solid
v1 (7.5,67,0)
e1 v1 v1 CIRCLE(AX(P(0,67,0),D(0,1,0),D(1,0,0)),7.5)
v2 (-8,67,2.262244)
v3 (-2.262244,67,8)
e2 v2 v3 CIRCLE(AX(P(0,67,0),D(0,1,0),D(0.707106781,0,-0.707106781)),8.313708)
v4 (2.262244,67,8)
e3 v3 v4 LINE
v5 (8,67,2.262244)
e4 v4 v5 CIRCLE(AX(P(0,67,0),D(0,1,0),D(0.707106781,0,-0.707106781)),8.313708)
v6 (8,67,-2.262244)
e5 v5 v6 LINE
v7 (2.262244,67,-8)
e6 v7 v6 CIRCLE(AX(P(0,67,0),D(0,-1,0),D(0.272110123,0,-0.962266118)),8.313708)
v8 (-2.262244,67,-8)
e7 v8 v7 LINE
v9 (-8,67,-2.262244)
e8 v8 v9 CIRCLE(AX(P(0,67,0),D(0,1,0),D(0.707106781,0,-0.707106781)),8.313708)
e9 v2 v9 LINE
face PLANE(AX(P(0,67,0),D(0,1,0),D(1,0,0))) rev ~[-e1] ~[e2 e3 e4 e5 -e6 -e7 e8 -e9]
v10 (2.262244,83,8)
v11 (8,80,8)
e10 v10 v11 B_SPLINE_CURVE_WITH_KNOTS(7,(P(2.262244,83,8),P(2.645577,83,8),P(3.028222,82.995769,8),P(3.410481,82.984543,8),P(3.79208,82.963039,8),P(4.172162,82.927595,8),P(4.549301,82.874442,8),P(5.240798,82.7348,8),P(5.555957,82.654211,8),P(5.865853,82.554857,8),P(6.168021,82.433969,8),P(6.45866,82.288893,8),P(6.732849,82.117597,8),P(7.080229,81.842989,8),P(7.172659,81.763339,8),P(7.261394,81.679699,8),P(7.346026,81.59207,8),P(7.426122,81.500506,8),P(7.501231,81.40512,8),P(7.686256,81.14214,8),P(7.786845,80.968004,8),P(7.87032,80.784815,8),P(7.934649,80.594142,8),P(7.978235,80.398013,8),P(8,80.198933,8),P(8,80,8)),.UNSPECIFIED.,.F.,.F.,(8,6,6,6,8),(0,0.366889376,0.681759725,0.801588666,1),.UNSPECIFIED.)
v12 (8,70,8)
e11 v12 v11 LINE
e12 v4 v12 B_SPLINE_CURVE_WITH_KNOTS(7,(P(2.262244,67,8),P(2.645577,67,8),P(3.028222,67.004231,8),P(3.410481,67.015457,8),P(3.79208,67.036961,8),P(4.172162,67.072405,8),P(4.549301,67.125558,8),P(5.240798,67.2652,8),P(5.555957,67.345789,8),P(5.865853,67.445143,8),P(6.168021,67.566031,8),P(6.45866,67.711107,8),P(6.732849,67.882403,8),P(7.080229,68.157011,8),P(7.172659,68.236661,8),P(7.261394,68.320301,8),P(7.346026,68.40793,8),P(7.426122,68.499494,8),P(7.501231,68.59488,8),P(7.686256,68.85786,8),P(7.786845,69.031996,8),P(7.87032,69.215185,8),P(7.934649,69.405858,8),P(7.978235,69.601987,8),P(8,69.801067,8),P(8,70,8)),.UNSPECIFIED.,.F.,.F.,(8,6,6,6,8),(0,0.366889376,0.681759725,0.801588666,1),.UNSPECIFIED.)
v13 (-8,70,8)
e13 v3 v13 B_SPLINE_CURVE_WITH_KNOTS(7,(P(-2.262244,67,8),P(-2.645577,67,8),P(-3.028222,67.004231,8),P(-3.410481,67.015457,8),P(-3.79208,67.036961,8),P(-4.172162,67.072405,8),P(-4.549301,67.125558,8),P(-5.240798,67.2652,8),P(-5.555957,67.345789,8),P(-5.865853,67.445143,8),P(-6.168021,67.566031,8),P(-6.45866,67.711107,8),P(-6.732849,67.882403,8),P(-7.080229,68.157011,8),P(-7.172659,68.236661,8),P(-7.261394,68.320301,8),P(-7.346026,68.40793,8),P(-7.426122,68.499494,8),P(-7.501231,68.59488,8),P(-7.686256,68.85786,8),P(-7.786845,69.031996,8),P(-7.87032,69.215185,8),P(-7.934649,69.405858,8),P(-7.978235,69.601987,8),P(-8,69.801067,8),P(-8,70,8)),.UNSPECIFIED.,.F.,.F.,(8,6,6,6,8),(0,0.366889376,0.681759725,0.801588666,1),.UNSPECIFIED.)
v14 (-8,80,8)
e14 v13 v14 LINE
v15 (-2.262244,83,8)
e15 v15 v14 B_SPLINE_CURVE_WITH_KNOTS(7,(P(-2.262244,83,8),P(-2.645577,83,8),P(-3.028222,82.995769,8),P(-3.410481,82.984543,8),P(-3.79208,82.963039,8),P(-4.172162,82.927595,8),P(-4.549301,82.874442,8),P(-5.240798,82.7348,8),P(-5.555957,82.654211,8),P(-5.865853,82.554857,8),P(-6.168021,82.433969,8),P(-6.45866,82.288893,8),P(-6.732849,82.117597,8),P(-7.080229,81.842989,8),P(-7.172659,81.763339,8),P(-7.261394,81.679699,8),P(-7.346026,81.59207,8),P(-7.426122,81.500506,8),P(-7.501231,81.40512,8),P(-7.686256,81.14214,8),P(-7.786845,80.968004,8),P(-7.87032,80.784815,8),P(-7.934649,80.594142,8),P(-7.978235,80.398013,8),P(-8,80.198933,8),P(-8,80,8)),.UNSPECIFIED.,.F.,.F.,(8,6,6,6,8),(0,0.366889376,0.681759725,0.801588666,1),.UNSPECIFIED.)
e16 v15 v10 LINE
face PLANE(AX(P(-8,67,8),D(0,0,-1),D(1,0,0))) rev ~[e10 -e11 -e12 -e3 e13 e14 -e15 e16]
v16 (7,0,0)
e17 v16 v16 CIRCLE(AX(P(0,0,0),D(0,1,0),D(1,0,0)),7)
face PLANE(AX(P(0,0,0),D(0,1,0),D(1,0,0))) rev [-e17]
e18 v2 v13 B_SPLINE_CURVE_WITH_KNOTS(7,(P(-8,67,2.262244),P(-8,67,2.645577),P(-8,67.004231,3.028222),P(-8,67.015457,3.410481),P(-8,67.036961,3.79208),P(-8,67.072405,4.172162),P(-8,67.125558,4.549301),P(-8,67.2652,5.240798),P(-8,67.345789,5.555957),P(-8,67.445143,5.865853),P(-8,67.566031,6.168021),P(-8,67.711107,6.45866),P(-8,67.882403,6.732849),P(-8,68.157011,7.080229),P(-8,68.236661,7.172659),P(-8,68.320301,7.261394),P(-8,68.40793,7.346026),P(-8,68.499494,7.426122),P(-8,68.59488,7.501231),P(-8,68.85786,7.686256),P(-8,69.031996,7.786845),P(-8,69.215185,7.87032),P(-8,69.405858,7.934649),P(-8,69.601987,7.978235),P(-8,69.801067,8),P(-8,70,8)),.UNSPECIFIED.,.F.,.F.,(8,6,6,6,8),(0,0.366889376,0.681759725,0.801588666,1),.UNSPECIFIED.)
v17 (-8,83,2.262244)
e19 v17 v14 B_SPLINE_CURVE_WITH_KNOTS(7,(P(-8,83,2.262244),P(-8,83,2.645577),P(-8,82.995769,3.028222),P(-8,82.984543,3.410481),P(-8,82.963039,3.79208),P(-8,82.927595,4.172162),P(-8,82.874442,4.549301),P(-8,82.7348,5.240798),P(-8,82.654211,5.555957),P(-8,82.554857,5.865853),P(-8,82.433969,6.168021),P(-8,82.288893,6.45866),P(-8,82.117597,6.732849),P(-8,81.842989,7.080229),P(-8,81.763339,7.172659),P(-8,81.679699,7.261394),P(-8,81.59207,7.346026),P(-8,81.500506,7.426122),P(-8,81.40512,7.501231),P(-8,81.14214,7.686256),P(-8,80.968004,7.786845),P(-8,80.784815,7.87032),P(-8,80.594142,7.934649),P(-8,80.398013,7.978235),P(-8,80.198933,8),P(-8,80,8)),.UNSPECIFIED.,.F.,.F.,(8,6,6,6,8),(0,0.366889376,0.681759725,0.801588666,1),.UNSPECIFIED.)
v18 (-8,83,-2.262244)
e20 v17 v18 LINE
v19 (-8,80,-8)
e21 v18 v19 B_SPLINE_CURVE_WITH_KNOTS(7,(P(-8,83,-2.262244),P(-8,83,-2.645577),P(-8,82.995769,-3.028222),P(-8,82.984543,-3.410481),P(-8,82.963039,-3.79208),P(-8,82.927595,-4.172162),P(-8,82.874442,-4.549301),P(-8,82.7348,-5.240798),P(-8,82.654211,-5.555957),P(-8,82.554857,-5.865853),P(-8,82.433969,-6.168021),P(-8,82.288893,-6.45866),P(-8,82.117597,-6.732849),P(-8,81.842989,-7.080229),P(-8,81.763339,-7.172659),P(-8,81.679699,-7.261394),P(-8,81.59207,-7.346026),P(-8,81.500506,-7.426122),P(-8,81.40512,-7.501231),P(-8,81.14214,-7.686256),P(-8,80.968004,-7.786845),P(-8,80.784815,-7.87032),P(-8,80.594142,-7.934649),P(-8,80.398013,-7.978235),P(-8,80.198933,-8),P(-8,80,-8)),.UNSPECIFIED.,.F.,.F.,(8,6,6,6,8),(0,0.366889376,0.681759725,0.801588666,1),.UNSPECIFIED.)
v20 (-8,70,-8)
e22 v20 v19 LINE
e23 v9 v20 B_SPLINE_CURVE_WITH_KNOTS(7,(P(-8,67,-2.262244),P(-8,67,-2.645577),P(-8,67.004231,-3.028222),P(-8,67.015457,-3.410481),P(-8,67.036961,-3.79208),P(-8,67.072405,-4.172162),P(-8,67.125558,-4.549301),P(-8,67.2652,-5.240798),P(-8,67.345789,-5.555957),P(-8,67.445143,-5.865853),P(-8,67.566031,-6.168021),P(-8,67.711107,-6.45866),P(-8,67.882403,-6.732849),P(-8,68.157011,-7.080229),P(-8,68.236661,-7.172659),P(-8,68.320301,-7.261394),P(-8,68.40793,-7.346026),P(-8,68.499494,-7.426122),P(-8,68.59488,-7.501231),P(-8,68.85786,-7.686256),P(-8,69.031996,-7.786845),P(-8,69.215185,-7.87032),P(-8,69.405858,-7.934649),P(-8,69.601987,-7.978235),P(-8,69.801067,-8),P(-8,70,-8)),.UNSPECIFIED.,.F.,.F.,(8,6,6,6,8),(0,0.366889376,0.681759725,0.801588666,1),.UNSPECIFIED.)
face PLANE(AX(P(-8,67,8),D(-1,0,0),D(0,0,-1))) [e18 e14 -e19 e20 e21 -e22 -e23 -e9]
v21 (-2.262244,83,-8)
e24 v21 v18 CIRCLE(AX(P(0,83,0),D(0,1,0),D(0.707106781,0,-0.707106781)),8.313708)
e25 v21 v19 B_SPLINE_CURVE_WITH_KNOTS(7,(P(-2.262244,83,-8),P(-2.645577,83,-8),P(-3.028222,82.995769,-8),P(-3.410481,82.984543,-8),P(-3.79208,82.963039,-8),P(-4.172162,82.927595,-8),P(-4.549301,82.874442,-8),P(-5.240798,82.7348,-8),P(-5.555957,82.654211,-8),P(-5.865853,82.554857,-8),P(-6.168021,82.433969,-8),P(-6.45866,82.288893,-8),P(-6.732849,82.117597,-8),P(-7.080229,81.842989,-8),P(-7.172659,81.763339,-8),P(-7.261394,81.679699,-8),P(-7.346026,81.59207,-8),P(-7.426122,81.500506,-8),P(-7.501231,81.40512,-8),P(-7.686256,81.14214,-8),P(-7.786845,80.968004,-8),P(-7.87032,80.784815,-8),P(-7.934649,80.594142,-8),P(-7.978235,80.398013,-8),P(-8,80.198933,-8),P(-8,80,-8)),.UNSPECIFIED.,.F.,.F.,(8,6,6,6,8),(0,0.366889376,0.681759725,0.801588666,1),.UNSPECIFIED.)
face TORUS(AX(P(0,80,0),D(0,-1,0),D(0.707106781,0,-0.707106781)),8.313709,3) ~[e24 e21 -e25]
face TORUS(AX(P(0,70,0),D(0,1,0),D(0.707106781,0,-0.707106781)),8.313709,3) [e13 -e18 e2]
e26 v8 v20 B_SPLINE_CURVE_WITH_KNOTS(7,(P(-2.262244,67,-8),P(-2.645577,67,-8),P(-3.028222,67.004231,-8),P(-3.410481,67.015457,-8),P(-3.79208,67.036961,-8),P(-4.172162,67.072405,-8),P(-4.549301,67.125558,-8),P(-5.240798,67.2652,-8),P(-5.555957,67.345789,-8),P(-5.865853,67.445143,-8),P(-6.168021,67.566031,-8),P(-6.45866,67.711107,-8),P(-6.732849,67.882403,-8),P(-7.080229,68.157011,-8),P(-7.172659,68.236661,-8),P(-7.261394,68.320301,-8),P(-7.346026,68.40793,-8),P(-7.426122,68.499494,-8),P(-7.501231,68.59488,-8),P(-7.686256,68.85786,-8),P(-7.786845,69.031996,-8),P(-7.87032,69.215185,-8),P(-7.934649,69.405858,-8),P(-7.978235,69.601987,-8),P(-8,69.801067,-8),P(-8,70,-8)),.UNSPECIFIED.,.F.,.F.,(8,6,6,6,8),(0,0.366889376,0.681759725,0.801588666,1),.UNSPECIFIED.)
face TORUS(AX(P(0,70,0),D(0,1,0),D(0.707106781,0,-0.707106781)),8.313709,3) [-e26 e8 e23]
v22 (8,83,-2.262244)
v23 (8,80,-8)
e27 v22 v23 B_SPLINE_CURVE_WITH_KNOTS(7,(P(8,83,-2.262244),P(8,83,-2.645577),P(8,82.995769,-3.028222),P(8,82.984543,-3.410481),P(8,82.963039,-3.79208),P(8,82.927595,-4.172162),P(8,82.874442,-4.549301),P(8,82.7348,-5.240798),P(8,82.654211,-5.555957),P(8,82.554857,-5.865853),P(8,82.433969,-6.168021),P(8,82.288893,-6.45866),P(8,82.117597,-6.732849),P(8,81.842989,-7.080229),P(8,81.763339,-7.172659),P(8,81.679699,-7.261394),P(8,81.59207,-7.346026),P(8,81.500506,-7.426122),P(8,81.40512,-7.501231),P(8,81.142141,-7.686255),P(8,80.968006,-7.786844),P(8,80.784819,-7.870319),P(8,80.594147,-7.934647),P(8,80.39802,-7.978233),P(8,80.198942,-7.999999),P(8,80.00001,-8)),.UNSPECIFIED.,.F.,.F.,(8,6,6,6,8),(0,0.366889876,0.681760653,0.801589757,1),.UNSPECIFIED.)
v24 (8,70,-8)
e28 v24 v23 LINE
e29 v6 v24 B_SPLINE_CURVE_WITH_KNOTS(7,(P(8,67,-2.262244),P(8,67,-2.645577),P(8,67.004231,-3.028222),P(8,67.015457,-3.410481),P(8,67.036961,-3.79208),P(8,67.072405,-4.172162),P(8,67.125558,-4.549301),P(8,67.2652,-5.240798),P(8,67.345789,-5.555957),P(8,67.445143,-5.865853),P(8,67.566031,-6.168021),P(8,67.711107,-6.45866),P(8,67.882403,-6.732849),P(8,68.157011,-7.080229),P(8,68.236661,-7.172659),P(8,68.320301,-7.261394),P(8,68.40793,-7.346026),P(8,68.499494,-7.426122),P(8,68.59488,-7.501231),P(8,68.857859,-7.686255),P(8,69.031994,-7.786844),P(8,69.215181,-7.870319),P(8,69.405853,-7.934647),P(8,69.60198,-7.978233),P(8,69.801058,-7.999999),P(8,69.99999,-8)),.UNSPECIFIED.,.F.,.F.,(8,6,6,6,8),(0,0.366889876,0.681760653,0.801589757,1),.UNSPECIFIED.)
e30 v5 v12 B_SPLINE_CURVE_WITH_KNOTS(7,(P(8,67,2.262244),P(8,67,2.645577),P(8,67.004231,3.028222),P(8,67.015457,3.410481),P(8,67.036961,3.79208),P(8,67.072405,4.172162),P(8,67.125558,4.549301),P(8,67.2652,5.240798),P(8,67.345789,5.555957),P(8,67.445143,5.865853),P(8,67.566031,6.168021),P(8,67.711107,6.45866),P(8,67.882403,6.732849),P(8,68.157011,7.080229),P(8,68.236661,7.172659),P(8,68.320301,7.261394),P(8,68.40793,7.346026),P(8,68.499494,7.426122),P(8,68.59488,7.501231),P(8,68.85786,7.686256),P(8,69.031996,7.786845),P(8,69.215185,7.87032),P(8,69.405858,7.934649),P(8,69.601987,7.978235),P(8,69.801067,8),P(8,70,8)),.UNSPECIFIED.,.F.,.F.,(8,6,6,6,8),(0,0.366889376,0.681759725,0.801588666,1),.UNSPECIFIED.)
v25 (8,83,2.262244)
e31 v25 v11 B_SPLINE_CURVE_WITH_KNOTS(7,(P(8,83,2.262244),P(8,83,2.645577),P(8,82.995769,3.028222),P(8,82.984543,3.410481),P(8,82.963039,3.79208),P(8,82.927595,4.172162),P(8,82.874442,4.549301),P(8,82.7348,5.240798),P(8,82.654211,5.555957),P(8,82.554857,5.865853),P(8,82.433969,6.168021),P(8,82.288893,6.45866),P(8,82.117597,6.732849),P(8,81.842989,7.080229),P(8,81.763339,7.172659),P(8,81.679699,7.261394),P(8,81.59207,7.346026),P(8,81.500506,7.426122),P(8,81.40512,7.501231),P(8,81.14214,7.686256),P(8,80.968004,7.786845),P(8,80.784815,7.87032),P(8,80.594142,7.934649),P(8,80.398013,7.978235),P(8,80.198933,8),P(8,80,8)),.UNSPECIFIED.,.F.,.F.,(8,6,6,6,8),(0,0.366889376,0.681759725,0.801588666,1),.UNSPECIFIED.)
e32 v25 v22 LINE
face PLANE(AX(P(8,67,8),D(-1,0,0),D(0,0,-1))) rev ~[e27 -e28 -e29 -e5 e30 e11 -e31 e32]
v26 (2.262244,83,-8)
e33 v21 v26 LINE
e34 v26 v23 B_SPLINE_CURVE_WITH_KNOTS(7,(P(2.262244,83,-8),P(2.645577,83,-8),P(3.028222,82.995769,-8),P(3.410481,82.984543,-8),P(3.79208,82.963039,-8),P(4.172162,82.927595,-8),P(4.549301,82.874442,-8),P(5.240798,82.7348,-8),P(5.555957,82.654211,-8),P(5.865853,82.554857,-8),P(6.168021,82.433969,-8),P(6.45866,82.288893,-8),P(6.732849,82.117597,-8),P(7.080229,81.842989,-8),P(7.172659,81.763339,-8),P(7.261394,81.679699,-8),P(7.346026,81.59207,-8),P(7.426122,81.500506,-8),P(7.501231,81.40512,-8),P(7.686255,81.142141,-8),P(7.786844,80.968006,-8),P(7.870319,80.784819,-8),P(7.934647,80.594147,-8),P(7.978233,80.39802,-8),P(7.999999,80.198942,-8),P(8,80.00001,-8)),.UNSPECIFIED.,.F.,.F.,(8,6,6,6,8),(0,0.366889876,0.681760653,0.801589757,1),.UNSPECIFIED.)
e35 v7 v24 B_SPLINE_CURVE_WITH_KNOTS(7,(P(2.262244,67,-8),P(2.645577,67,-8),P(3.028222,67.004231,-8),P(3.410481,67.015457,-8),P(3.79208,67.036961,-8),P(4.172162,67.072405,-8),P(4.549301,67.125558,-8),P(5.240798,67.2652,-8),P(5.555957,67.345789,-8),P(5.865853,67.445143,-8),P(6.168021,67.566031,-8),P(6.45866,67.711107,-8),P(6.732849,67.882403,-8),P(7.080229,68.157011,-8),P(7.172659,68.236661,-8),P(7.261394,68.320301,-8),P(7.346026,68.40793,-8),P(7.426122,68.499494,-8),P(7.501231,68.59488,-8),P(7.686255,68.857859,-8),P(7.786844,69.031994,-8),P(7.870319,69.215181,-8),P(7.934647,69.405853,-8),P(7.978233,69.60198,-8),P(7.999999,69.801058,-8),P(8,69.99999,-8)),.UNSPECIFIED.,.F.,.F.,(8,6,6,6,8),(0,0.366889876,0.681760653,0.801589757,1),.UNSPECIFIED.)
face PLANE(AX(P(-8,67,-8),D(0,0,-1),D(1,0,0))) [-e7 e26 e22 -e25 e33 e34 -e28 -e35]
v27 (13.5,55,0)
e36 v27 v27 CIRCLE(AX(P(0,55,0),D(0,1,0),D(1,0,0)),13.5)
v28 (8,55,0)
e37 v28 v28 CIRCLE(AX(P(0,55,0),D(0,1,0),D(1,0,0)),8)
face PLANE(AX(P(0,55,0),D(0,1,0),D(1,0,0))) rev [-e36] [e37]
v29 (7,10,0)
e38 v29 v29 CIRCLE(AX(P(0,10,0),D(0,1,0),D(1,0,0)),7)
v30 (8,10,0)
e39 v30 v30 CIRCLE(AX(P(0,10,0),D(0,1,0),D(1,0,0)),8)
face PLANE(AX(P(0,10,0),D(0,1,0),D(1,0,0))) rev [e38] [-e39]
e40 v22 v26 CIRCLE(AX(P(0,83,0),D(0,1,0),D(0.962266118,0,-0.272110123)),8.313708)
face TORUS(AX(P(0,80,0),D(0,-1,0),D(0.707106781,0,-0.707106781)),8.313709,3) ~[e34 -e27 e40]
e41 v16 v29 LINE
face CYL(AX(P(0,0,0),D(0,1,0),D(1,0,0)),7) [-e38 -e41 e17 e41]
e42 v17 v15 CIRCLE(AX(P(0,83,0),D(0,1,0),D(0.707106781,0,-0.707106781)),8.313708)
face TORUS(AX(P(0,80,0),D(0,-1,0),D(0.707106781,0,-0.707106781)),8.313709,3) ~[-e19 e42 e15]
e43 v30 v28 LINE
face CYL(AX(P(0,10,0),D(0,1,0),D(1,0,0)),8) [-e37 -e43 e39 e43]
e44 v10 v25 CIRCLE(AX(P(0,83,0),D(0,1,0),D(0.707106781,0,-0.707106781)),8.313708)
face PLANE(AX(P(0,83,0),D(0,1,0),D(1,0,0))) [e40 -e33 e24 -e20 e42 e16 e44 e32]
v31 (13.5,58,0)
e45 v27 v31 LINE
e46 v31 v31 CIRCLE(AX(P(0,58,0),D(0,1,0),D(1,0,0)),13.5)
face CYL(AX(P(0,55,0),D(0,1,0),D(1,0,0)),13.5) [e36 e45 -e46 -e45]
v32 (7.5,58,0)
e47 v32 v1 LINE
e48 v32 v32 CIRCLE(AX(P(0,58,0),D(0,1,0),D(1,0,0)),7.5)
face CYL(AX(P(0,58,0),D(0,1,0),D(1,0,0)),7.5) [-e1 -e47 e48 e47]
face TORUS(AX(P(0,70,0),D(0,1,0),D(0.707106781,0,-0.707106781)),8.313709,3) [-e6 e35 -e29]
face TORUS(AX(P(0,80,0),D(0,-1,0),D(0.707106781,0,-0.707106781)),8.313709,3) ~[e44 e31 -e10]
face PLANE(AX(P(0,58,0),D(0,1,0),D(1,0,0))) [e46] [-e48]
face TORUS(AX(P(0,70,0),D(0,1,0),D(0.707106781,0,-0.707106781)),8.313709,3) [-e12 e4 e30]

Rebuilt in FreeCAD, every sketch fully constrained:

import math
import FreeCAD as App
import Part
import Sketcher


def add_polygon(sketch, points):
    """Adds a closed chain of lines whose ends are joined by coincident constraints."""
    first, n = sketch.GeometryCount, len(points)
    for a, b in zip(points, points[1:] + points[:1]):
        sketch.addGeometry(Part.LineSegment(App.Vector(*a, 0), App.Vector(*b, 0)), False)
    for i in range(n):
        sketch.addConstraint(Sketcher.Constraint("Coincident", first + i, 2, first + (i + 1) % n, 1))

doc = App.newDocument("Part")
body = doc.addObject("PartDesign::Body", "Body")

sketch1 = body.newObject("Sketcher::SketchObject", "Sketch")
sketch1.AttachmentSupport = (doc.getObject("XY_Plane"), [""])
sketch1.MapMode = "FlatFace"
add_polygon(sketch1, [(0, 0), (7, 0), (7, 10), (8, 10), (8, 55), (13.5, 55), (13.5, 58), (7.5, 58), (7.5, 67), (0, 67)])
sketch1.addConstraint([
    Sketcher.Constraint("Horizontal", 0),
    Sketcher.Constraint("Vertical", 1),
    Sketcher.Constraint("Horizontal", 2),
    Sketcher.Constraint("Vertical", 3),
    Sketcher.Constraint("Horizontal", 4),
    Sketcher.Constraint("Vertical", 5),
    Sketcher.Constraint("Horizontal", 6),
    Sketcher.Constraint("Vertical", 7),
    Sketcher.Constraint("Horizontal", 8),
    Sketcher.Constraint("Vertical", 9),
    Sketcher.Constraint("Coincident", 9, 2, -1, 1),
    Sketcher.Constraint("DistanceX", 0, 1, 0, 2, 7.0),
    Sketcher.Constraint("DistanceX", 2, 1, 2, 2, 1.0),
    Sketcher.Constraint("DistanceX", 6, 2, 6, 1, 6.0),
    Sketcher.Constraint("DistanceY", 1, 1, 1, 2, 10.0),
    Sketcher.Constraint("DistanceY", 3, 1, 3, 2, 45.0),
    Sketcher.Constraint("DistanceY", 5, 1, 5, 2, 3.0),
    Sketcher.Constraint("DistanceY", 7, 1, 7, 2, 9.0),
    Sketcher.Constraint("DistanceX", 4, 1, 4, 2, 5.5),
])
revolution = body.newObject("PartDesign::Revolution", "Revolution")
revolution.Profile = sketch1
revolution.ReferenceAxis = (sketch1, ["V_Axis"])
revolution.Angle = 360

sketch2 = body.newObject("Sketcher::SketchObject", "Sketch001")
sketch2.AttachmentSupport = (doc.getObject("XZ_Plane"), [""])
sketch2.MapMode = "FlatFace"
sketch2.AttachmentOffset = App.Placement(App.Vector(0, 0, -67), App.Rotation())
add_polygon(sketch2, [(-8, -8), (-8, 8), (8, 8), (8, -8)])
sketch2.addConstraint([
    Sketcher.Constraint("Vertical", 0),
    Sketcher.Constraint("Horizontal", 1),
    Sketcher.Constraint("Vertical", 2),
    Sketcher.Constraint("Horizontal", 3),
    Sketcher.Constraint("Symmetric", 0, 2, 2, 2, -1, 1),
    Sketcher.Constraint("Equal", 3, 0),
    Sketcher.Constraint("DistanceX", 1, 1, 1, 2, 16.0),
])
pad1 = body.newObject("PartDesign::Pad", "Pad")
pad1.Profile = sketch2
pad1.Length = 16
pad1.Reversed = True

sketch3 = body.newObject("Sketcher::SketchObject", "Sketch002")
sketch3.Placement = App.Placement(App.Vector(0, 0, 0), App.Rotation(App.Vector(0.707106781, 0, -0.707106781), App.Vector(0, 0.999999999, 0), App.Vector(0.707106781, 0, 0.707106781), "ZXY"))
sketch3.addGeometry([
    Part.LineSegment(App.Vector(11.3, 83, 0), App.Vector(8.3, 83, 0)),
    Part.ArcOfCircle(Part.Circle(App.Vector(8.3, 80, 0), App.Vector(0, 0, 1), 3), math.radians(0), math.radians(90)),
    Part.LineSegment(App.Vector(11.3, 80, 0), App.Vector(11.3, 83, 0)),
    Part.LineSegment(App.Vector(8.3, 67, 0), App.Vector(11.3, 67, 0)),
    Part.LineSegment(App.Vector(11.3, 67, 0), App.Vector(11.3, 70, 0)),
    Part.ArcOfCircle(Part.Circle(App.Vector(8.3, 70, 0), App.Vector(0, 0, 1), 3), math.radians(-90), math.radians(0)),
], False)
sketch3.addConstraint([
    Sketcher.Constraint("Tangent", 0, 2, 1, 2),
    Sketcher.Constraint("Tangent", 1, 1, 2, 1),
    Sketcher.Constraint("Coincident", 2, 2, 0, 1),
    Sketcher.Constraint("Coincident", 3, 2, 4, 1),
    Sketcher.Constraint("Tangent", 4, 2, 5, 2),
    Sketcher.Constraint("Tangent", 5, 1, 3, 1),
    Sketcher.Constraint("Horizontal", 0),
    Sketcher.Constraint("Vertical", 2),
    Sketcher.Constraint("Horizontal", 3),
    Sketcher.Constraint("Vertical", 4),
    Sketcher.Constraint("Equal", 1, 5),
    Sketcher.Constraint("Vertical", 1, 3, 5, 3),
    Sketcher.Constraint("Radius", 1, 3.0),
    Sketcher.Constraint("DistanceY", -1, 1, 1, 3, 80.0),
    Sketcher.Constraint("DistanceY", -1, 1, 5, 3, 70.0),
    Sketcher.Constraint("DistanceX", -1, 1, 1, 3, 8.313708),
])
groove = body.newObject("PartDesign::Groove", "Groove")
groove.Profile = sketch3
groove.ReferenceAxis = (sketch3, ["V_Axis"])
groove.Angle = 360

doc.recompute()
